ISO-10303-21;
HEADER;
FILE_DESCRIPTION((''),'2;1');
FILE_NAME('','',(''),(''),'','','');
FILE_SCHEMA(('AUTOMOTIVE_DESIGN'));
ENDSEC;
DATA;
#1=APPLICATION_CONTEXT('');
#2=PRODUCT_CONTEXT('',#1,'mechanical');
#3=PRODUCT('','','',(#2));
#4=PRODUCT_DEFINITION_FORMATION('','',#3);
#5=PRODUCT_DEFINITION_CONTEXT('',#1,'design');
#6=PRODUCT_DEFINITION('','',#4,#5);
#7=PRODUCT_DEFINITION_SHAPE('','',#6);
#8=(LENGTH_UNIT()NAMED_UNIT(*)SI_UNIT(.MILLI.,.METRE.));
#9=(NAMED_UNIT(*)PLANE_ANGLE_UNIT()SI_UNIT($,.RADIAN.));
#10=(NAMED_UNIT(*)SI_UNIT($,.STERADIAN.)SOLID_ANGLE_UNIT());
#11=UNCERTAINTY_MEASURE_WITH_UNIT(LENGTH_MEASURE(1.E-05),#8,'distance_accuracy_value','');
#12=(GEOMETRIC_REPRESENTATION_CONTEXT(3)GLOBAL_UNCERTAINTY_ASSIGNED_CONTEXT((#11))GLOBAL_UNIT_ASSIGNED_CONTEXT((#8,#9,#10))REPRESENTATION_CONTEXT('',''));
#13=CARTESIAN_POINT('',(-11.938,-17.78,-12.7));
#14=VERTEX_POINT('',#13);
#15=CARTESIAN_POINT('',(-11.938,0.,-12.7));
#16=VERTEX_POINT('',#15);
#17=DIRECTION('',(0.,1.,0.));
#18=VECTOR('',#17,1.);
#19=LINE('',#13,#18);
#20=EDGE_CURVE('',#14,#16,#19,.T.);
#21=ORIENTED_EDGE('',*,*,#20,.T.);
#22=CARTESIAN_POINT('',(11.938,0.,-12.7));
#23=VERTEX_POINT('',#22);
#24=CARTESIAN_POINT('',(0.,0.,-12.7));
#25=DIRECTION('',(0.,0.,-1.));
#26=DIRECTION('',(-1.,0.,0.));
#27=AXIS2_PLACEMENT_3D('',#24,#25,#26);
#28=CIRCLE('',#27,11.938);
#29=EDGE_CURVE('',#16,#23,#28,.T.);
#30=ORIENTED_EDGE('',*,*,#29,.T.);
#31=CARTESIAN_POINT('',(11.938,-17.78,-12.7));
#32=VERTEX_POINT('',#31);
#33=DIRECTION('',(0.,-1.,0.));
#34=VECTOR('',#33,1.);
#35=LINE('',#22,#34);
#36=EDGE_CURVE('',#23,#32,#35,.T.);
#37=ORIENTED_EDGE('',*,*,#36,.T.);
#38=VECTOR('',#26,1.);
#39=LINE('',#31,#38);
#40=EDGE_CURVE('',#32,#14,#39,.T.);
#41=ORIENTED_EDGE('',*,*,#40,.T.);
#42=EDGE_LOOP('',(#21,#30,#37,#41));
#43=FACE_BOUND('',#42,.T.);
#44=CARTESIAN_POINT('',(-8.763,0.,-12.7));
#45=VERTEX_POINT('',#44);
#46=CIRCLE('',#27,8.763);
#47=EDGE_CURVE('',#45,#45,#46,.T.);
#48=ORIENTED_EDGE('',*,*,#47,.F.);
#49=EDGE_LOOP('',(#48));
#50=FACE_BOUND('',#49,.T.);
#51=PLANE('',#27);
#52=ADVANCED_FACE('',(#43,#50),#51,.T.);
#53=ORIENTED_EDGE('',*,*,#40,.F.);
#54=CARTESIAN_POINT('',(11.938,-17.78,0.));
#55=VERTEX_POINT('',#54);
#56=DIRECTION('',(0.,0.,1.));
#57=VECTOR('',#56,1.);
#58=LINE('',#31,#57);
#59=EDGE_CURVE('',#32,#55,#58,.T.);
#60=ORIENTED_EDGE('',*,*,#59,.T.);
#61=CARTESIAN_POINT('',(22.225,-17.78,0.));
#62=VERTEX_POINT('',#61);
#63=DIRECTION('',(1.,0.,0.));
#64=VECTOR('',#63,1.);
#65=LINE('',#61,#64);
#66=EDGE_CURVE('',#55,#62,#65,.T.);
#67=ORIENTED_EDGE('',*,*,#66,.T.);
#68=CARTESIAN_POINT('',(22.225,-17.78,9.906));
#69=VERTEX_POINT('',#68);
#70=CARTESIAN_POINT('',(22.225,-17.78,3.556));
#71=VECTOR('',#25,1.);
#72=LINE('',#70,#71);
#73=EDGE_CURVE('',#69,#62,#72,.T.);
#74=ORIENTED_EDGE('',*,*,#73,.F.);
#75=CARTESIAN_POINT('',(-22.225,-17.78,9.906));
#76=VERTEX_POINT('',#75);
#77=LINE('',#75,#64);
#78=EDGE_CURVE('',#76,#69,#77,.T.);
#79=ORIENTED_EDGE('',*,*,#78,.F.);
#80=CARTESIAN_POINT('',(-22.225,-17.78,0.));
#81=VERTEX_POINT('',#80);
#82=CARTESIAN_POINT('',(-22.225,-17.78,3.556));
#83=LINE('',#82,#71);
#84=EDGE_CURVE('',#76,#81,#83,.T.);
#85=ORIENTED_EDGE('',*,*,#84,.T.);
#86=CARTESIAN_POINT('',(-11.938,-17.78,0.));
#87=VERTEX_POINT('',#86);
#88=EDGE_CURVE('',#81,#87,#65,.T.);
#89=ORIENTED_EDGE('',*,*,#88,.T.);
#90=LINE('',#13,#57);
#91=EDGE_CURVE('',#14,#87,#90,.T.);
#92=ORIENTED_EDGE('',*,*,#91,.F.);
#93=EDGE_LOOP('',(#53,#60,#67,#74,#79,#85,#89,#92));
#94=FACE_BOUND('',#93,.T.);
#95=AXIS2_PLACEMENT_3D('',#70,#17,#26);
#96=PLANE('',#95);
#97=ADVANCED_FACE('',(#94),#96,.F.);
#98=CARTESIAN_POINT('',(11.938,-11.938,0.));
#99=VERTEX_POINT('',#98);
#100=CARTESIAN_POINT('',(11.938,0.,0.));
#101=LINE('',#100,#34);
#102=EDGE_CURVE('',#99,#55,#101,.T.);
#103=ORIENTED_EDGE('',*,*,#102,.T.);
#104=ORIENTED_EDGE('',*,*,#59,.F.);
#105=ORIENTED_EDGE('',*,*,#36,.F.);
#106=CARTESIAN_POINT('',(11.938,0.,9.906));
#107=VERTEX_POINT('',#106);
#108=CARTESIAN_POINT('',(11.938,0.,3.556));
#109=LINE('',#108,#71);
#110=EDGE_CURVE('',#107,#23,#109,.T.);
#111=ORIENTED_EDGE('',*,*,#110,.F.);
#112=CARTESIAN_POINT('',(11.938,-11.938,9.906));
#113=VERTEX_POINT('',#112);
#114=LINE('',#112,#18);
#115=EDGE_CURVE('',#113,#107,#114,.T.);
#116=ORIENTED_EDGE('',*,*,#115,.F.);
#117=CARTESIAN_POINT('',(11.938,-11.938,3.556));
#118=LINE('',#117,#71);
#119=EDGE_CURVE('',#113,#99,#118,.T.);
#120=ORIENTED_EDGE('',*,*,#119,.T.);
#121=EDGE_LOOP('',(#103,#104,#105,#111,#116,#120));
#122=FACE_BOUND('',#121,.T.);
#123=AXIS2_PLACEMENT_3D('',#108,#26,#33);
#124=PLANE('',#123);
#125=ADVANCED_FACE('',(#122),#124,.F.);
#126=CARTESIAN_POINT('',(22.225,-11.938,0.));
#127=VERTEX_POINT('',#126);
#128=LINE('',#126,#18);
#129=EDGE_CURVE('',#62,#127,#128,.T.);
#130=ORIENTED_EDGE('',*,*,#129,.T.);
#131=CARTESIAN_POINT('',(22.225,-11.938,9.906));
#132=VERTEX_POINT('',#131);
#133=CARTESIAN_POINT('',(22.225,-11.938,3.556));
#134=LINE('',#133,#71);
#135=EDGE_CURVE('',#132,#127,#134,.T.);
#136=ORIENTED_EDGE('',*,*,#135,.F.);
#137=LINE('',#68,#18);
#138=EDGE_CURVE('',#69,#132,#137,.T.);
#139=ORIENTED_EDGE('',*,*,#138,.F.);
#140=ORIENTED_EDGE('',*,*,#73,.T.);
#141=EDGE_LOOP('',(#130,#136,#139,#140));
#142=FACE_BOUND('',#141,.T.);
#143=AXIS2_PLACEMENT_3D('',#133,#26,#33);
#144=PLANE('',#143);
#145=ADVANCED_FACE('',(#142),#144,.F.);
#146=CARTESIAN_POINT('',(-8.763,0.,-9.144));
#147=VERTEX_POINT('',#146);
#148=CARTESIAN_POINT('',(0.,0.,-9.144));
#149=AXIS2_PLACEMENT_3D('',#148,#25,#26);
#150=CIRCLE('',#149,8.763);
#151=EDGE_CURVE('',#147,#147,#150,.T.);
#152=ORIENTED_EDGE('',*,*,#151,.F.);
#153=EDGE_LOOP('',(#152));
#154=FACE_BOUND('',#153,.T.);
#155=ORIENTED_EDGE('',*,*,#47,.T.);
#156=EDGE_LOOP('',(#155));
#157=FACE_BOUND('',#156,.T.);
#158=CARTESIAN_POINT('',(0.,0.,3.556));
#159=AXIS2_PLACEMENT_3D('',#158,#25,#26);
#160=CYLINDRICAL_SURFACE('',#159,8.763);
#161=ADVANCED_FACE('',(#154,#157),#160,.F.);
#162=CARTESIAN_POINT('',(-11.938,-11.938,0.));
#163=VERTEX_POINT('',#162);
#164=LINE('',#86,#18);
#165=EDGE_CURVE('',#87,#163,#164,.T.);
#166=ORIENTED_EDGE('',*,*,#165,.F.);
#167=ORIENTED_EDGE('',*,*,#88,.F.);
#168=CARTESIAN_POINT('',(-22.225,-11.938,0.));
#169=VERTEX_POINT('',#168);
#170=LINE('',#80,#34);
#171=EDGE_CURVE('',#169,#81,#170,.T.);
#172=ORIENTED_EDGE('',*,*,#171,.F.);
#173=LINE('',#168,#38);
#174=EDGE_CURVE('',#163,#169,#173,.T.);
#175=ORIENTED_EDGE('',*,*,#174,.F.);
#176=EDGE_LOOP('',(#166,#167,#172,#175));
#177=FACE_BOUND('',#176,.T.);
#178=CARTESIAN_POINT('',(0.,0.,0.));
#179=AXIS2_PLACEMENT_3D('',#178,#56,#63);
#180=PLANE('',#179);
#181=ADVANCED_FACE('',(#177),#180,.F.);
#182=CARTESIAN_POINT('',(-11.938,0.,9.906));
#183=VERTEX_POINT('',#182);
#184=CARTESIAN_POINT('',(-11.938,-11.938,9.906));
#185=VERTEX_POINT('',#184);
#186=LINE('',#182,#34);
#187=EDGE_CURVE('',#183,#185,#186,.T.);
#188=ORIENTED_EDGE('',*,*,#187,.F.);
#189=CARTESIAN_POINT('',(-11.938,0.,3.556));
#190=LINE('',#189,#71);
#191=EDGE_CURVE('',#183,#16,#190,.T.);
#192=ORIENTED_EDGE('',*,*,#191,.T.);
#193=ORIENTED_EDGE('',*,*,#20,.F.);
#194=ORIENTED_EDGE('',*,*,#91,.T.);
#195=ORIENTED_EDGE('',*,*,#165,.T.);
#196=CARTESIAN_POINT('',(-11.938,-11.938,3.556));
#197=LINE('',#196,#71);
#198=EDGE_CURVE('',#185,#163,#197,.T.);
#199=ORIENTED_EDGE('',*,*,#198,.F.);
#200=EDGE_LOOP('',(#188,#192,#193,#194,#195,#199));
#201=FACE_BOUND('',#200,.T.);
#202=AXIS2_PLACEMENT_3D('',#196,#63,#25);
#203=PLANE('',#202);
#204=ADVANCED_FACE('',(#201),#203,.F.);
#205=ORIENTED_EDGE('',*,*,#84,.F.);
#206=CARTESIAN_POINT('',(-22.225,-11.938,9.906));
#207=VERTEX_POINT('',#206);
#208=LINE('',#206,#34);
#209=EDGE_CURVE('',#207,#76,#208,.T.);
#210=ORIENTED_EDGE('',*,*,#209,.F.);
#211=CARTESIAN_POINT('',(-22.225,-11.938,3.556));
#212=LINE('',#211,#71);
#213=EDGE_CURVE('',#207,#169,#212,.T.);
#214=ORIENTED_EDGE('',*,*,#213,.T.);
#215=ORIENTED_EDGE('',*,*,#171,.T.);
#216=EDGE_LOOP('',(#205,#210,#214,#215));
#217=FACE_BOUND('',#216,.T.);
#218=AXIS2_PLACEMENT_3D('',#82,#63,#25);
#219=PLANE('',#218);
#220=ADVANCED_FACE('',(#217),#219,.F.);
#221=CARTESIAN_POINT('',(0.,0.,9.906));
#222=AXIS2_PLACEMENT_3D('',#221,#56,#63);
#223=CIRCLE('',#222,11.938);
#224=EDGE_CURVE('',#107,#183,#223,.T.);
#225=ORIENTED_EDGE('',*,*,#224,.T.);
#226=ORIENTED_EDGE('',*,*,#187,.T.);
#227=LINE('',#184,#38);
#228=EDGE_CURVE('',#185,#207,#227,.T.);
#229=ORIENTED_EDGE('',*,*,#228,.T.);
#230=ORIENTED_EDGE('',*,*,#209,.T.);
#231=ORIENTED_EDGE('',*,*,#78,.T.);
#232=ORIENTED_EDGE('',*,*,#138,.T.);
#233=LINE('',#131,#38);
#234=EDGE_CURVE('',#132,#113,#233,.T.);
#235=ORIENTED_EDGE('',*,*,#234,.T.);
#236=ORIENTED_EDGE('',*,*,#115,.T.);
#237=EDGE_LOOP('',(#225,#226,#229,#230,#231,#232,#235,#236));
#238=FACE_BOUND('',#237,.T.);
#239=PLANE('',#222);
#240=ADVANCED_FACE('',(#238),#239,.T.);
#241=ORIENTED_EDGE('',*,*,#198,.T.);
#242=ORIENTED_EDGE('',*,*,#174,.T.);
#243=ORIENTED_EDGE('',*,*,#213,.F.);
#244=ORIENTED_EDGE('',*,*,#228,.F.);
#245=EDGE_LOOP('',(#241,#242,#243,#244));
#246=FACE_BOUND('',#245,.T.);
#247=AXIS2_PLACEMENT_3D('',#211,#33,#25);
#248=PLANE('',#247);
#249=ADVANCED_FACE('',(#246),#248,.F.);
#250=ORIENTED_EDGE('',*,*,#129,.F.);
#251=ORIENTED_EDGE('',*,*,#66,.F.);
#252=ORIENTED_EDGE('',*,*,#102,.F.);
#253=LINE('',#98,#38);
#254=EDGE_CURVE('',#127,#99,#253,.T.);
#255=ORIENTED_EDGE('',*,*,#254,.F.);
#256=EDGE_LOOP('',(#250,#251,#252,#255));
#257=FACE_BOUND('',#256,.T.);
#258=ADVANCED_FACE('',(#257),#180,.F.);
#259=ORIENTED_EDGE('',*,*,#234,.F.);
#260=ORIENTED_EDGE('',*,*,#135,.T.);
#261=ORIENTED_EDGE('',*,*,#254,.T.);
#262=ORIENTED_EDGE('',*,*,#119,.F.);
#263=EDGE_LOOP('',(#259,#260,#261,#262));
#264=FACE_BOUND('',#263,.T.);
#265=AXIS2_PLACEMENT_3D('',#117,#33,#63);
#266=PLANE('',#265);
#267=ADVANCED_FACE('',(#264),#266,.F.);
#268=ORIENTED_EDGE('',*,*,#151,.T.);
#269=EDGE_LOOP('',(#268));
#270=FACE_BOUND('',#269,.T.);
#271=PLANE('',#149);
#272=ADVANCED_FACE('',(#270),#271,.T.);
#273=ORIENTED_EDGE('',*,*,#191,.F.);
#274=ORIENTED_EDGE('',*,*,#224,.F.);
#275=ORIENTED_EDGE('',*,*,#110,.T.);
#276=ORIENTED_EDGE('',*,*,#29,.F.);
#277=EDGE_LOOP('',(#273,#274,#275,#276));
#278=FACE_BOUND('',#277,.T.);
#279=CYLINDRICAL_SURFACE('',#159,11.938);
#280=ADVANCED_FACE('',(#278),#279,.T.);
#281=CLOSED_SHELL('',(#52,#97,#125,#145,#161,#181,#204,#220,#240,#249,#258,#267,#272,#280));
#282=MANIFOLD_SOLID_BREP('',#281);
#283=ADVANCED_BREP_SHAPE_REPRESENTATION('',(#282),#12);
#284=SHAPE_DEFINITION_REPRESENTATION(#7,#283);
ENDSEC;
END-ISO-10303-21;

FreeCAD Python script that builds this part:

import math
import FreeCAD as App
import Part
import Sketcher
from FreeCAD import Vector
Q = App.Units.Quantity

doc = App.newDocument("Part")
params = doc.addObject("Spreadsheet::Sheet", "Params")
for row, (alias, value) in enumerate([
    ("sketch1_diameter", "0.69 in"),
    ("sketch1_radius", "0.47 in"),
    ("sketch1_width", "1.75 in"),
    ("sketch1_height", "0.47 in"),
    ("sketch1_height2", "0.23 in"),
    ("pad1_length", "0.14 in"),
    ("sketch2_radius", "0.47 in"),
    ("sketch2_width", "1.75 in"),
    ("sketch2_height", "0.47 in"),
    ("sketch2_height2", "0.23 in"),
    ("pad2_length", "0.25 in"),
    ("sketch3_diameter", "0.94 in"),
    ("sketch3_diameter2", "0.69 in"),
    ("pad3_length", "0.5 in"),
    ("sketch4_diameter", "0.69 in"),
    ("pad4_length", "0.5 in"),
    ("sketch5_radius", "0.47 in"),
    ("sketch5_height", "0.7 in"),
    ("pad5_length", "0.5 in"),
], start=1):
    params.set(f"A{row}", alias)
    params.set(f"B{row}", "=" + value)
    params.setAlias(f"B{row}", alias)

body = doc.addObject("PartDesign::Body", "Body")

sketch1 = body.newObject("Sketcher::SketchObject", "Sketch")
sketch1.AttachmentSupport = (doc.getObject("XY_Plane"), [""])
sketch1.MapMode = "FlatFace"
sketch1.addGeometry([
    Part.LineSegment(Vector(12, -12, 0), Vector(12, 0, 0)),
    Part.ArcOfCircle(Part.Circle(Vector(0, 0, 0), Vector(0, 0, 1), 12), math.radians(0), math.radians(180)),
    Part.LineSegment(Vector(-12, 0, 0), Vector(-12, -12, 0)),
    Part.LineSegment(Vector(-12, -12, 0), Vector(-22, -12, 0)),
    Part.LineSegment(Vector(-22, -12, 0), Vector(-22, -18, 0)),
    Part.LineSegment(Vector(-22, -18, 0), Vector(22, -18, 0)),
    Part.LineSegment(Vector(22, -18, 0), Vector(22, -12, 0)),
    Part.LineSegment(Vector(22, -12, 0), Vector(12, -12, 0)),
    Part.Circle(Vector(0, 0, 0), Vector(0, 0, 1), 9),
], False)
sketch1.addConstraint([
    Sketcher.Constraint("Tangent", 0, 2, 1, 1),
    Sketcher.Constraint("Tangent", 1, 2, 2, 1),
    Sketcher.Constraint("Coincident", 2, 2, 3, 1),
    Sketcher.Constraint("Coincident", 3, 2, 4, 1),
    Sketcher.Constraint("Coincident", 4, 2, 5, 1),
    Sketcher.Constraint("Coincident", 5, 2, 6, 1),
    Sketcher.Constraint("Coincident", 6, 2, 7, 1),
    Sketcher.Constraint("Coincident", 7, 2, 0, 1),
    Sketcher.Constraint("Vertical", 0),
    Sketcher.Constraint("Vertical", 2),
    Sketcher.Constraint("Horizontal", 3),
    Sketcher.Constraint("Vertical", 4),
    Sketcher.Constraint("Horizontal", 5),
    Sketcher.Constraint("Vertical", 6),
    Sketcher.Constraint("Horizontal", 7),
    Sketcher.Constraint("Coincident", 1, 3, -1, 1),
    Sketcher.Constraint("Coincident", 8, 3, -1, 1),
    Sketcher.Constraint("Symmetric", 3, 2, 6, 2, -2),
    Sketcher.Constraint("Diameter", 8, Q("0.69 in")),
    Sketcher.Constraint("Radius", 1, Q("0.47 in")),
    Sketcher.Constraint("DistanceX", 5, 1, 5, 2, Q("1.75 in")),
    Sketcher.Constraint("DistanceY", 0, 1, 0, 2, Q("0.47 in")),
    Sketcher.Constraint("DistanceY", 4, 2, 4, 1, Q("0.23 in")),
])
sketch1.setExpression("Constraints[18]", "Params.sketch1_diameter")
sketch1.setExpression("Constraints[19]", "Params.sketch1_radius")
sketch1.setExpression("Constraints[20]", "Params.sketch1_width")
sketch1.setExpression("Constraints[21]", "Params.sketch1_height")
sketch1.setExpression("Constraints[22]", "Params.sketch1_height2")
pad1 = body.newObject("PartDesign::Pad", "Pad")
pad1.Profile = sketch1
pad1.setExpression("Length", "Params.pad1_length")

sketch2 = body.newObject("Sketcher::SketchObject", "Sketch001")
sketch2.AttachmentSupport = (doc.getObject("XY_Plane"), [""])
sketch2.MapMode = "FlatFace"
sketch2.AttachmentOffset = App.Placement(Vector(0, 0, 0.14 * 25.4), App.Rotation())
sketch2.addGeometry([
    Part.LineSegment(Vector(-12, 0, 0), Vector(-12, -12, 0)),
    Part.LineSegment(Vector(-12, -12, 0), Vector(-22, -12, 0)),
    Part.LineSegment(Vector(-22, -12, 0), Vector(-22, -18, 0)),
    Part.LineSegment(Vector(-22, -18, 0), Vector(22, -18, 0)),
    Part.LineSegment(Vector(22, -18, 0), Vector(22, -12, 0)),
    Part.LineSegment(Vector(22, -12, 0), Vector(12, -12, 0)),
    Part.LineSegment(Vector(12, -12, 0), Vector(12, 0, 0)),
    Part.ArcOfCircle(Part.Circle(Vector(0, 0, 0), Vector(0, 0, 1), 12), math.radians(0), math.radians(180)),
], False)
sketch2.addConstraint([
    Sketcher.Constraint("Coincident", 0, 2, 1, 1),
    Sketcher.Constraint("Coincident", 1, 2, 2, 1),
    Sketcher.Constraint("Coincident", 2, 2, 3, 1),
    Sketcher.Constraint("Coincident", 3, 2, 4, 1),
    Sketcher.Constraint("Coincident", 4, 2, 5, 1),
    Sketcher.Constraint("Coincident", 5, 2, 6, 1),
    Sketcher.Constraint("Tangent", 6, 2, 7, 1),
    Sketcher.Constraint("Tangent", 7, 2, 0, 1),
    Sketcher.Constraint("Vertical", 0),
    Sketcher.Constraint("Horizontal", 1),
    Sketcher.Constraint("Vertical", 2),
    Sketcher.Constraint("Horizontal", 3),
    Sketcher.Constraint("Vertical", 4),
    Sketcher.Constraint("Horizontal", 5),
    Sketcher.Constraint("Vertical", 6),
    Sketcher.Constraint("Coincident", 7, 3, -1, 1),
    Sketcher.Constraint("Symmetric", 1, 2, 4, 2, -2),
    Sketcher.Constraint("Radius", 7, Q("0.47 in")),
    Sketcher.Constraint("DistanceX", 3, 1, 3, 2, Q("1.75 in")),
    Sketcher.Constraint("DistanceY", 0, 2, 0, 1, Q("0.47 in")),
    Sketcher.Constraint("DistanceY", 2, 2, 2, 1, Q("0.23 in")),
])
sketch2.setExpression("Constraints[17]", "Params.sketch2_radius")
sketch2.setExpression("Constraints[18]", "Params.sketch2_width")
sketch2.setExpression("Constraints[19]", "Params.sketch2_height")
sketch2.setExpression("Constraints[20]", "Params.sketch2_height2")
pad2 = body.newObject("PartDesign::Pad", "Pad001")
pad2.Profile = sketch2
pad2.setExpression("Length", "Params.pad2_length")

sketch3 = body.newObject("Sketcher::SketchObject", "Sketch002")
sketch3.AttachmentSupport = (doc.getObject("XY_Plane"), [""])
sketch3.MapMode = "FlatFace"
sketch3.AttachmentOffset = App.Placement(Vector(0, 0, -0.5 * 25.4), App.Rotation())
sketch3.addGeometry([
    Part.Circle(Vector(0, 0, 0), Vector(0, 0, 1), 12),
    Part.Circle(Vector(0, 0, 0), Vector(0, 0, 1), 9),
], False)
sketch3.addConstraint([
    Sketcher.Constraint("Coincident", 0, 3, -1, 1),
    Sketcher.Constraint("Coincident", 1, 3, -1, 1),
    Sketcher.Constraint("Diameter", 0, Q("0.94 in")),
    Sketcher.Constraint("Diameter", 1, Q("0.69 in")),
])
sketch3.setExpression("Constraints[2]", "Params.sketch3_diameter")
sketch3.setExpression("Constraints[3]", "Params.sketch3_diameter2")
pad3 = body.newObject("PartDesign::Pad", "Pad002")
pad3.Profile = sketch3
pad3.setExpression("Length", "Params.pad3_length")

sketch4 = body.newObject("Sketcher::SketchObject", "Sketch003")
sketch4.AttachmentSupport = (doc.getObject("XY_Plane"), [""])
sketch4.MapMode = "FlatFace"
sketch4.AttachmentOffset = App.Placement(Vector(0, 0, -0.36 * 25.4), App.Rotation())
sketch4.addGeometry(Part.Circle(Vector(0, 0, 0), Vector(0, 0, 1), 9), False)
sketch4.addConstraint([
    Sketcher.Constraint("Coincident", 0, 3, -1, 1),
    Sketcher.Constraint("Diameter", 0, Q("0.69 in")),
])
sketch4.setExpression("Constraints[1]", "Params.sketch4_diameter")
pad4 = body.newObject("PartDesign::Pad", "Pad003")
pad4.Profile = sketch4
pad4.setExpression("Length", "Params.pad4_length")

sketch5 = body.newObject("Sketcher::SketchObject", "Sketch004")
sketch5.AttachmentSupport = (doc.getObject("XY_Plane"), [""])
sketch5.MapMode = "FlatFace"
sketch5.AttachmentOffset = App.Placement(Vector(0, 0, -0.5 * 25.4), App.Rotation())
sketch5.addGeometry([
    Part.LineSegment(Vector(12, 0, 0), Vector(12, -18, 0)),
    Part.LineSegment(Vector(12, -18, 0), Vector(-12, -18, 0)),
    Part.LineSegment(Vector(-12, -18, 0), Vector(-12, 0, 0)),
    Part.ArcOfCircle(Part.Circle(Vector(0, 0, 0), Vector(0, 0, 1), 12), math.radians(180), math.radians(360)),
], False)
sketch5.addConstraint([
    Sketcher.Constraint("Coincident", 0, 2, 1, 1),
    Sketcher.Constraint("Coincident", 1, 2, 2, 1),
    Sketcher.Constraint("Tangent", 2, 2, 3, 1),
    Sketcher.Constraint("Tangent", 3, 2, 0, 1),
    Sketcher.Constraint("Vertical", 0),
    Sketcher.Constraint("Horizontal", 1),
    Sketcher.Constraint("Vertical", 2),
    Sketcher.Constraint("Coincident", 3, 3, -1, 1),
    Sketcher.Constraint("Radius", 3, Q("0.47 in")),
    Sketcher.Constraint("DistanceY", 0, 2, 0, 1, Q("0.7 in")),
])
sketch5.setExpression("Constraints[8]", "Params.sketch5_radius")
sketch5.setExpression("Constraints[9]", "Params.sketch5_height")
pad5 = body.newObject("PartDesign::Pad", "Pad004")
pad5.Profile = sketch5
pad5.setExpression("Length", "Params.pad5_length")

doc.recompute()
